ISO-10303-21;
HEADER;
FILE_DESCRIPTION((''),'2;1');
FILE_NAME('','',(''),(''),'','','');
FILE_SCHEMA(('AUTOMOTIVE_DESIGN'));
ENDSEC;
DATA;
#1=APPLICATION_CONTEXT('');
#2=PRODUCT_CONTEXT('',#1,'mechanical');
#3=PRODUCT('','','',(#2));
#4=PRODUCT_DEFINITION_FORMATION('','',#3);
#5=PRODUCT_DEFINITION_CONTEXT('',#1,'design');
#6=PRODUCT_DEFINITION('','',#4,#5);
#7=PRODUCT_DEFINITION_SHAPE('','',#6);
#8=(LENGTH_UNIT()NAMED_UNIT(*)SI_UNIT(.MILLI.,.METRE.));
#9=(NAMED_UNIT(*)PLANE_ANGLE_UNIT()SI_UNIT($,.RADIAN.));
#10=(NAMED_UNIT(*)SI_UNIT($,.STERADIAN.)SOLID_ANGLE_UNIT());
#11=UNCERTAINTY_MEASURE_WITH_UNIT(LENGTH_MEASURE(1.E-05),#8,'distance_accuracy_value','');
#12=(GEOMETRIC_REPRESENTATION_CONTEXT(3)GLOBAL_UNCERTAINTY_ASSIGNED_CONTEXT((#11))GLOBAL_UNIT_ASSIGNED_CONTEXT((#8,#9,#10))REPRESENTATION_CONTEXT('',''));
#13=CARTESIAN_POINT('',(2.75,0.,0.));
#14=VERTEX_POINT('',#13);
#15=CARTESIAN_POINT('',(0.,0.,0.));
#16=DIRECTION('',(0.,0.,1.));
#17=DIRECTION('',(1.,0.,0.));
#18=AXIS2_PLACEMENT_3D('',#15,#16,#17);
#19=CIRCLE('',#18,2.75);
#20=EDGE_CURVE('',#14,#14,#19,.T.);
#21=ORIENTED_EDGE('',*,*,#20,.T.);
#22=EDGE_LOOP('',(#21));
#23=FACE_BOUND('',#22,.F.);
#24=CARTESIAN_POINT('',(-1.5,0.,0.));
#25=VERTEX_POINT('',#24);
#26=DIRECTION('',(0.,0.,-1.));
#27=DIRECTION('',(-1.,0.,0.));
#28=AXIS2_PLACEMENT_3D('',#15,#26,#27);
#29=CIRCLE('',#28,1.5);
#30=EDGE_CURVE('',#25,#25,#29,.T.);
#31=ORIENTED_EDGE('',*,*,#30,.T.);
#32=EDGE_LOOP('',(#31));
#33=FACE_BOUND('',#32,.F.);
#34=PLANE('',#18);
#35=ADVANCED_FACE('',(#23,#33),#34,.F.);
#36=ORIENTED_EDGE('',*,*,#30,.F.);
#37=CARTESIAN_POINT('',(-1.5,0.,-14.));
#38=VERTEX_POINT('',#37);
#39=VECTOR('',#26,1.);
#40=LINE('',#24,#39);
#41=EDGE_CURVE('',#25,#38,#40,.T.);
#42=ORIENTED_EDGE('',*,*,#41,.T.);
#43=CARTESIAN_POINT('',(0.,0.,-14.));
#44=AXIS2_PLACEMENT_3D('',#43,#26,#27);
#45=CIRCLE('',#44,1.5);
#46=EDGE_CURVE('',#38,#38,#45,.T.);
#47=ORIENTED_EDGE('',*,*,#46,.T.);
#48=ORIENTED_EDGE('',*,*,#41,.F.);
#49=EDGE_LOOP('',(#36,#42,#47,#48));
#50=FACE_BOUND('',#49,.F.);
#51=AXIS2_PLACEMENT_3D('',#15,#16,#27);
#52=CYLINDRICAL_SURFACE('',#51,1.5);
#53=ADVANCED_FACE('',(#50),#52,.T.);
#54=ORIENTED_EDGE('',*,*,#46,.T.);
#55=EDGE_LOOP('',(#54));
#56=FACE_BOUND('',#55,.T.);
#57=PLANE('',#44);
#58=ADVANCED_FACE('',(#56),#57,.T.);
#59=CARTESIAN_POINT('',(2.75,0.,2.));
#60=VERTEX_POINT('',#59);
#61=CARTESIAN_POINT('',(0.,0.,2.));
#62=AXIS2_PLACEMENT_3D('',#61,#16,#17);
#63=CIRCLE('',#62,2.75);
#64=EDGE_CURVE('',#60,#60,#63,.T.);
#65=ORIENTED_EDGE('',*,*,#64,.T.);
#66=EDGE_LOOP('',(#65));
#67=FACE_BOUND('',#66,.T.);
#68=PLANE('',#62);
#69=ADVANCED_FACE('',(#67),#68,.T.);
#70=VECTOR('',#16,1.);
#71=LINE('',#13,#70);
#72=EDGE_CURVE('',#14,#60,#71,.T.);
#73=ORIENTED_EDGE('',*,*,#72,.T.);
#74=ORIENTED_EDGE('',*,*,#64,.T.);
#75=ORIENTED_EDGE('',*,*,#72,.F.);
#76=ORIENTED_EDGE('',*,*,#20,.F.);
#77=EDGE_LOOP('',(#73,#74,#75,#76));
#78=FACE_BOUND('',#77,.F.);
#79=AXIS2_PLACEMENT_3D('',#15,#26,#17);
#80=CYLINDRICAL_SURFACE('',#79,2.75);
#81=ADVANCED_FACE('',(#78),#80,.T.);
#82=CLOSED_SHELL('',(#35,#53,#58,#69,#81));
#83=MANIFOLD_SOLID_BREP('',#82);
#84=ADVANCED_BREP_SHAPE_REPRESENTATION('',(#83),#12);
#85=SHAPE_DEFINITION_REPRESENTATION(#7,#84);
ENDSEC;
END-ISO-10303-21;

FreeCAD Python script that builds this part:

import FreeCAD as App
import Part
import Sketcher

V = App.Vector
Q = App.Units.Quantity

doc = App.newDocument("Part")
body = doc.addObject("PartDesign::Body", "Body")

# Sketch on XY plane
sketch1 = doc.addObject("Sketcher::SketchObject", "Sketch")
body.addObject(sketch1)
sketch1.AttachmentSupport = (doc.XY_Plane, [""])
sketch1.MapMode = "FlatFace"
sketch1.addGeometry(Part.Circle(V(0, 0, 0), V(0, 0, 1), 2.8), False)
sketch1.addConstraint([
    Sketcher.Constraint("Coincident", 0, 3, -1, 1),
    Sketcher.Constraint("Diameter", 0, Q("5.5 mm")),
])
pad1 = doc.addObject("PartDesign::Pad", "Pad")
body.addObject(pad1)
pad1.Profile = sketch1
pad1.Length = 2

# Sketch on XY plane
sketch2 = doc.addObject("Sketcher::SketchObject", "Sketch001")
body.addObject(sketch2)
sketch2.AttachmentSupport = (doc.XY_Plane, [""])
sketch2.MapMode = "FlatFace"
sketch2.addGeometry(Part.Circle(V(0, 0, 0), V(0, 0, 1), 1.5), False)
sketch2.addConstraint([
    Sketcher.Constraint("Coincident", 0, 3, -1, 1),
    Sketcher.Constraint("Diameter", 0, Q("3 mm")),
])
pad2 = doc.addObject("PartDesign::Pad", "Pad001")
body.addObject(pad2)
pad2.Profile = sketch2
pad2.Length = 14
pad2.Reversed = True

doc.recompute()
